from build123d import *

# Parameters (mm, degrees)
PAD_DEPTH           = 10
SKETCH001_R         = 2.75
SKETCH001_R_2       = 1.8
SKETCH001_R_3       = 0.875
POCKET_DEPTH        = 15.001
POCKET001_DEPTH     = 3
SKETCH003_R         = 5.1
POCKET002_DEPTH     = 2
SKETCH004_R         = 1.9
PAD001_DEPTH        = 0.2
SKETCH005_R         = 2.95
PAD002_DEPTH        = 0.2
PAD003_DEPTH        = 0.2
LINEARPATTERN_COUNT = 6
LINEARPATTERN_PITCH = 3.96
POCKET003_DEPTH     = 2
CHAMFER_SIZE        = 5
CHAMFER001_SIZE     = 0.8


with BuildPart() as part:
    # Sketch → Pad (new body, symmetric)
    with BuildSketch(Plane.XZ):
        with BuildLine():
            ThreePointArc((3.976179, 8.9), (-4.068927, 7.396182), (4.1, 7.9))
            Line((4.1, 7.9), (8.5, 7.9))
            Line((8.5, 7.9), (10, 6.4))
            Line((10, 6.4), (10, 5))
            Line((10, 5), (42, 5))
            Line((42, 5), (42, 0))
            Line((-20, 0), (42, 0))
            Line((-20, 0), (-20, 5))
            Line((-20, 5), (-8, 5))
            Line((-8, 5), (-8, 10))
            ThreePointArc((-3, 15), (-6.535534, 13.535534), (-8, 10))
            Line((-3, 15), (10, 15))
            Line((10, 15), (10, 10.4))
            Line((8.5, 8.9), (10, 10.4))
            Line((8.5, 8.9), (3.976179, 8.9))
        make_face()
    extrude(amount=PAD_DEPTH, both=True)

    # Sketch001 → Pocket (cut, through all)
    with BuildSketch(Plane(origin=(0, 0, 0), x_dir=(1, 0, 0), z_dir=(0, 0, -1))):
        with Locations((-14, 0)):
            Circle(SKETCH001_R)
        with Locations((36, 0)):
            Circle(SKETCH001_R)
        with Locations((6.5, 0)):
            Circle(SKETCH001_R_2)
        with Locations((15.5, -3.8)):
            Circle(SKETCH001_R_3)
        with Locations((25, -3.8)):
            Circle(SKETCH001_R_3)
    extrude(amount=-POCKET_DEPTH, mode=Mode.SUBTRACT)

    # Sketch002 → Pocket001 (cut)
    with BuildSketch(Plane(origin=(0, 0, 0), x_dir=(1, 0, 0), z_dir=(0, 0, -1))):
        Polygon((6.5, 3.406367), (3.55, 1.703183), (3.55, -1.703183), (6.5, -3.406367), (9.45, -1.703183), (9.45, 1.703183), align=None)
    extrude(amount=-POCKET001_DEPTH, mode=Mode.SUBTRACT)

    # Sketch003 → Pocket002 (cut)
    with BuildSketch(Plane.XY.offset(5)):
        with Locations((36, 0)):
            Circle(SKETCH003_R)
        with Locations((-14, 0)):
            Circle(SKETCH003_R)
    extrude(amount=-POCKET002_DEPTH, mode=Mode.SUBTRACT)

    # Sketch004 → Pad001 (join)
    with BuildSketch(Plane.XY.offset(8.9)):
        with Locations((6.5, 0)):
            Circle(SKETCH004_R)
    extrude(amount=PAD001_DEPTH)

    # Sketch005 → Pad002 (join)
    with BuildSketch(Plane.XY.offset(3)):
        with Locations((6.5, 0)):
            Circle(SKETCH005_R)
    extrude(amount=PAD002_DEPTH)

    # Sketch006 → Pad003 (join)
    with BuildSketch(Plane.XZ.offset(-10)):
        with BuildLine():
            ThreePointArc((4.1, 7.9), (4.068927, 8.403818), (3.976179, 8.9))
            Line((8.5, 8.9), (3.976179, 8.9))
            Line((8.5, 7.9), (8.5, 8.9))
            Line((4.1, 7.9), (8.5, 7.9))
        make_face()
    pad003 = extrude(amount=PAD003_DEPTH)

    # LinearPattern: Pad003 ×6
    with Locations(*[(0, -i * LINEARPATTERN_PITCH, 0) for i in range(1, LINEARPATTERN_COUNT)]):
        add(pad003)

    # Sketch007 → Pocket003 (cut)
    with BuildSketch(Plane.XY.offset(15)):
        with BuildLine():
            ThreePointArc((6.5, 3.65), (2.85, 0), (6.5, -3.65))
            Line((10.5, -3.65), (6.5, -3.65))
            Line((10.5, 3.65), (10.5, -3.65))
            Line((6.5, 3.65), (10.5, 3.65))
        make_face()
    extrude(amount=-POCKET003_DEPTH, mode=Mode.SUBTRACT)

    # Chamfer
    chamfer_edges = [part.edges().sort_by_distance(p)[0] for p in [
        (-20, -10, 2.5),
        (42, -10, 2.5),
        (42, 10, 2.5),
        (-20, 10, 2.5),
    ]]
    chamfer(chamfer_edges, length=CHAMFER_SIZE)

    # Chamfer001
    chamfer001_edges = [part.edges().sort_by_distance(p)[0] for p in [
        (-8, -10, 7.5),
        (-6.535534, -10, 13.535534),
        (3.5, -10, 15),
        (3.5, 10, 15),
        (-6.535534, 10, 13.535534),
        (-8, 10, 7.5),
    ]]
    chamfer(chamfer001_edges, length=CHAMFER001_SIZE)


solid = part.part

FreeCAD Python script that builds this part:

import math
import FreeCAD as App
import Part
import Sketcher
Q = App.Units.Quantity


def edges_at(feature, points):
    """Names of the edges that pass closest to the given points."""
    edges = feature.Shape.Edges
    near = lambda p: min(range(len(edges)), key=lambda i: edges[i].distToShape(Part.Vertex(*p))[0])
    return sorted({f"Edge{near(p) + 1}" for p in points})


def add_polygon(sketch, points):
    """Adds a closed chain of lines whose ends are joined by coincident constraints."""
    first, n = sketch.GeometryCount, len(points)
    for a, b in zip(points, points[1:] + points[:1]):
        sketch.addGeometry(Part.LineSegment(App.Vector(*a, 0), App.Vector(*b, 0)), False)
    for i in range(n):
        sketch.addConstraint(Sketcher.Constraint("Coincident", first + i, 2, first + (i + 1) % n, 1))

doc = App.newDocument("Part")
body = doc.addObject("PartDesign::Body", "Body")

sketch1 = body.newObject("Sketcher::SketchObject", "Sketch")
sketch1.AttachmentSupport = (doc.getObject("XZ_Plane"), [""])
sketch1.MapMode = "FlatFace"
sketch1.addGeometry(Part.ArcOfCircle(Part.Circle(App.Vector(0, 7.9, 0), App.Vector(0, 0, 1), 4.1), math.radians(14.116985), math.radians(360.000004)), False)
sketch1.addGeometry(Part.LineSegment(App.Vector(3.976179, 8.9, 0), App.Vector(8.5, 8.9, 0)), False)
sketch1.addGeometry(Part.LineSegment(App.Vector(8.5, 8.9, 0), App.Vector(10, 10.4, 0)), False)
sketch1.addGeometry(Part.LineSegment(App.Vector(10, 10.4, 0), App.Vector(10, 15, 0)), False)
sketch1.addGeometry(Part.LineSegment(App.Vector(10, 15, 0), App.Vector(-3, 15, 0)), False)
sketch1.addGeometry(Part.ArcOfCircle(Part.Circle(App.Vector(-3, 10, 0), App.Vector(0, 0, 1), 5), math.radians(89.999996), math.radians(180.000004)), False)
sketch1.addGeometry(Part.LineSegment(App.Vector(-8, 10, 0), App.Vector(-8, 5, 0)), False)
sketch1.addGeometry(Part.LineSegment(App.Vector(-8, 5, 0), App.Vector(-20, 5, 0)), False)
sketch1.addGeometry(Part.LineSegment(App.Vector(-20, 5, 0), App.Vector(-20, 0, 0)), False)
sketch1.addGeometry(Part.LineSegment(App.Vector(-20, 0, 0), App.Vector(42, 0, 0)), False)
sketch1.addGeometry(Part.LineSegment(App.Vector(42, 0, 0), App.Vector(42, 5, 0)), False)
sketch1.addGeometry(Part.LineSegment(App.Vector(42, 5, 0), App.Vector(10, 5, 0)), False)
sketch1.addGeometry(Part.LineSegment(App.Vector(10, 5, 0), App.Vector(10, 6.4, 0)), False)
sketch1.addGeometry(Part.LineSegment(App.Vector(10, 6.4, 0), App.Vector(8.5, 7.9, 0)), False)
sketch1.addGeometry(Part.LineSegment(App.Vector(8.5, 7.9, 0), App.Vector(4.1, 7.9, 0)), False)
sketch1.addConstraint(Sketcher.Constraint("Coincident", 0, 1, 1, 1))
sketch1.addConstraint(Sketcher.Constraint("Coincident", 1, 2, 2, 1))
sketch1.addConstraint(Sketcher.Constraint("Coincident", 2, 2, 3, 1))
sketch1.addConstraint(Sketcher.Constraint("Coincident", 3, 2, 4, 1))
sketch1.addConstraint(Sketcher.Constraint("Tangent", 4, 2, 5, 1))
sketch1.addConstraint(Sketcher.Constraint("Tangent", 5, 2, 6, 1))
sketch1.addConstraint(Sketcher.Constraint("Coincident", 6, 2, 7, 1))
sketch1.addConstraint(Sketcher.Constraint("Coincident", 7, 2, 8, 1))
sketch1.addConstraint(Sketcher.Constraint("Coincident", 8, 2, 9, 1))
sketch1.addConstraint(Sketcher.Constraint("Coincident", 9, 2, 10, 1))
sketch1.addConstraint(Sketcher.Constraint("Coincident", 10, 2, 11, 1))
sketch1.addConstraint(Sketcher.Constraint("Coincident", 11, 2, 12, 1))
sketch1.addConstraint(Sketcher.Constraint("Coincident", 12, 2, 13, 1))
sketch1.addConstraint(Sketcher.Constraint("Coincident", 13, 2, 14, 1))
sketch1.addConstraint(Sketcher.Constraint("Coincident", 14, 2, 0, 2))
sketch1.addConstraint(Sketcher.Constraint("Horizontal", 1))
sketch1.addConstraint(Sketcher.Constraint("Vertical", 3))
sketch1.addConstraint(Sketcher.Constraint("Horizontal", 4))
sketch1.addConstraint(Sketcher.Constraint("Vertical", 6))
sketch1.addConstraint(Sketcher.Constraint("Horizontal", 7))
sketch1.addConstraint(Sketcher.Constraint("Vertical", 8))
sketch1.addConstraint(Sketcher.Constraint("Horizontal", 9))
sketch1.addConstraint(Sketcher.Constraint("Vertical", 10))
sketch1.addConstraint(Sketcher.Constraint("Horizontal", 11))
sketch1.addConstraint(Sketcher.Constraint("Vertical", 12))
sketch1.addConstraint(Sketcher.Constraint("Horizontal", 14))
sketch1.addConstraint(Sketcher.Constraint("PointOnObject", 0, 3, -2))
sketch1.addConstraint(Sketcher.Constraint("PointOnObject", 8, 2, -1))
sketch1.addConstraint(Sketcher.Constraint("Perpendicular", 2, 13))
sketch1.addConstraint(Sketcher.Constraint("Horizontal", 7, 2, 10, 2))
sketch1.addConstraint(Sketcher.Constraint("Horizontal", 0, 3, 13, 2))
sketch1.addConstraint(Sketcher.Constraint("Vertical", 3, 2, 11, 2))
sketch1.addConstraint(Sketcher.Constraint("Vertical", 1, 2, 13, 2))
sketch1.addConstraint(Sketcher.Constraint("Equal", 6, 8))
sketch1.addConstraint(Sketcher.Constraint("Equal", 2, 13))
sketch1.addConstraint(Sketcher.Constraint("Radius", 5, 5.0))
sketch1.addConstraint(Sketcher.Constraint("Radius", 0, 4.1))
sketch1.addConstraint(Sketcher.Constraint("DistanceX", 4, 2, 4, 1, 13.0))
sketch1.addConstraint(Sketcher.Constraint("DistanceX", 7, 2, 7, 1, 12.0))
sketch1.addConstraint(Sketcher.Constraint("DistanceX", 9, 1, 9, 2, 62.0))
sketch1.addConstraint(Sketcher.Constraint("DistanceY", 6, 2, 6, 1, 5.0))
sketch1.addConstraint(Sketcher.Constraint("DistanceX", 14, 2, 14, 1, 4.4))
sketch1.addConstraint(Sketcher.Constraint("DistanceY", 3, 1, 3, 2, 4.6))
sketch1.addConstraint(Sketcher.Constraint("DistanceY", 12, 1, 12, 2, 1.4))
sketch1.addConstraint(Sketcher.Constraint("DistanceX", 5, 3, -1, 1, 3.0))
pad1 = body.newObject("PartDesign::Pad", "Pad")
pad1.Profile = sketch1
pad1.Length = 20
pad1.Midplane = True

sketch2 = body.newObject("Sketcher::SketchObject", "Sketch001")
sketch2.AttachmentSupport = (doc.getObject("XY_Plane"), [""])
sketch2.MapMode = "FlatFace"
sketch2.addGeometry(Part.Circle(App.Vector(-14, 0, 0), App.Vector(0, 0, 1), 2.75), False)
sketch2.addGeometry(Part.Circle(App.Vector(36, 0, 0), App.Vector(0, 0, 1), 2.75), False)
sketch2.addGeometry(Part.Circle(App.Vector(6.5, 0, 0), App.Vector(0, 0, 1), 1.8), False)
sketch2.addGeometry(Part.Circle(App.Vector(15.5, 3.8, 0), App.Vector(0, 0, 1), 0.875), False)
sketch2.addGeometry(Part.Circle(App.Vector(25, 3.8, 0), App.Vector(0, 0, 1), 0.875), False)
sketch2.addConstraint(Sketcher.Constraint("Equal", 0, 1))
sketch2.addConstraint(Sketcher.Constraint("Equal", 3, 4))
sketch2.addConstraint(Sketcher.Constraint("PointOnObject", 0, 3, -1))
sketch2.addConstraint(Sketcher.Constraint("PointOnObject", 1, 3, -1))
sketch2.addConstraint(Sketcher.Constraint("PointOnObject", 2, 3, -1))
sketch2.addConstraint(Sketcher.Constraint("Horizontal", 3, 3, 4, 3))
sketch2.addConstraint(Sketcher.Constraint("Diameter", 0, 5.5))
sketch2.addConstraint(Sketcher.Constraint("Diameter", 2, 3.6))
sketch2.addConstraint(Sketcher.Constraint("Diameter", 3, 1.75))
sketch2.addConstraint(Sketcher.Constraint("DistanceX", 0, 3, -1, 1, 14.0))
sketch2.addConstraint(Sketcher.Constraint("DistanceX", -1, 1, 1, 3, 36.0))
sketch2.addConstraint(Sketcher.Constraint("DistanceX", -1, 1, 4, 3, 25.0))
sketch2.addConstraint(Sketcher.Constraint("DistanceX", 2, 3, 3, 3, 9.0))
sketch2.addConstraint(Sketcher.Constraint("DistanceX", -1, 1, 2, 3, 6.5))
sketch2.addConstraint(Sketcher.Constraint("DistanceY", -1, 1, 3, 3, 3.8))
pocket1 = body.newObject("PartDesign::Pocket", "Pocket")
pocket1.Profile = sketch2
pocket1.Type = "ThroughAll"
pocket1.Reversed = True

sketch3 = body.newObject("Sketcher::SketchObject", "Sketch002")
sketch3.AttachmentSupport = (doc.getObject("XY_Plane"), [""])
sketch3.MapMode = "FlatFace"
add_polygon(sketch3, [(6.5, -3.406367), (3.55, -1.703183), (3.55, 1.703183), (6.5, 3.406367), (9.45, 1.703183), (9.45, -1.703183)])
sketch3.addConstraint(Sketcher.Constraint("Vertical", 1))
sketch3.addConstraint(Sketcher.Constraint("Vertical", 4))
sketch3.addConstraint(Sketcher.Constraint("Symmetric", 2, 2, 5, 2, -1))
sketch3.addConstraint(Sketcher.Constraint("Parallel", 0, 3))
sketch3.addConstraint(Sketcher.Constraint("Parallel", 2, 5))
sketch3.addConstraint(Sketcher.Constraint("Horizontal", 1, 2, 3, 2))
sketch3.addConstraint(Sketcher.Constraint("Horizontal", 0, 2, 4, 2))
sketch3.addConstraint(Sketcher.Constraint("Angle", 0, Q("149.99999 deg")))
sketch3.addConstraint(Sketcher.Constraint("DistanceX", -1, 1, 2, 2, 6.5))
sketch3.addConstraint(Sketcher.Constraint("DistanceX", 1, 2, 3, 2, 5.9))
sketch3.addConstraint(Sketcher.Constraint("DistanceY", 1, 1, 1, 2, 3.406366))
pocket2 = body.newObject("PartDesign::Pocket", "Pocket001")
pocket2.Profile = sketch3
pocket2.Length = 3
pocket2.Reversed = True

sketch4 = body.newObject("Sketcher::SketchObject", "Sketch003")
sketch4.AttachmentSupport = (doc.getObject("XY_Plane"), [""])
sketch4.MapMode = "FlatFace"
sketch4.AttachmentOffset = App.Placement(App.Vector(0, 0, 5), App.Rotation())
sketch4.addGeometry(Part.Circle(App.Vector(36, 0, 0), App.Vector(0, 0, 1), 5.1), False)
sketch4.addGeometry(Part.Circle(App.Vector(-14, 0, 0), App.Vector(0, 0, 1), 5.1), False)
sketch4.addConstraint(Sketcher.Constraint("Equal", 0, 1))
sketch4.addConstraint(Sketcher.Constraint("PointOnObject", 0, 3, -1))
sketch4.addConstraint(Sketcher.Constraint("PointOnObject", 1, 3, -1))
sketch4.addConstraint(Sketcher.Constraint("Diameter", 0, 10.2))
sketch4.addConstraint(Sketcher.Constraint("DistanceX", -1, 1, 0, 3, 36.0))
sketch4.addConstraint(Sketcher.Constraint("DistanceX", 1, 3, -1, 1, 14.0))
pocket3 = body.newObject("PartDesign::Pocket", "Pocket002")
pocket3.Profile = sketch4
pocket3.Length = 2

sketch5 = body.newObject("Sketcher::SketchObject", "Sketch004")
sketch5.AttachmentSupport = (doc.getObject("XY_Plane"), [""])
sketch5.MapMode = "FlatFace"
sketch5.AttachmentOffset = App.Placement(App.Vector(0, 0, 8.9), App.Rotation())
sketch5.addGeometry(Part.Circle(App.Vector(6.5, 0, 0), App.Vector(0, 0, 1), 1.9), False)
sketch5.addConstraint(Sketcher.Constraint("PointOnObject", 0, 3, -1))
sketch5.addConstraint(Sketcher.Constraint("Diameter", 0, 3.8))
sketch5.addConstraint(Sketcher.Constraint("DistanceX", -1, 1, 0, 3, 6.5))
pad2 = body.newObject("PartDesign::Pad", "Pad001")
pad2.Profile = sketch5
pad2.Length = 0.2

sketch6 = body.newObject("Sketcher::SketchObject", "Sketch005")
sketch6.AttachmentSupport = (doc.getObject("XY_Plane"), [""])
sketch6.MapMode = "FlatFace"
sketch6.AttachmentOffset = App.Placement(App.Vector(0, 0, 3), App.Rotation())
sketch6.addGeometry(Part.Circle(App.Vector(6.5, 0, 0), App.Vector(0, 0, 1), 2.95), False)
sketch6.addConstraint(Sketcher.Constraint("PointOnObject", 0, 3, -1))
sketch6.addConstraint(Sketcher.Constraint("Diameter", 0, 5.9))
sketch6.addConstraint(Sketcher.Constraint("DistanceX", -1, 1, 0, 3, 6.5))
pad3 = body.newObject("PartDesign::Pad", "Pad002")
pad3.Profile = sketch6
pad3.Length = 0.2

sketch7 = body.newObject("Sketcher::SketchObject", "Sketch006")
sketch7.AttachmentSupport = (doc.getObject("XZ_Plane"), [""])
sketch7.MapMode = "FlatFace"
sketch7.AttachmentOffset = App.Placement(App.Vector(0, 0, -10), App.Rotation())
sketch7.addGeometry(Part.ArcOfCircle(Part.Circle(App.Vector(-0.000003, 7.899999, 0), App.Vector(0, 0, 1), 4.100003), math.radians(0.00001), math.radians(14.116979)), False)
sketch7.addGeometry(Part.LineSegment(App.Vector(4.1, 7.9, 0), App.Vector(8.5, 7.9, 0)), False)
sketch7.addGeometry(Part.LineSegment(App.Vector(8.5, 7.9, 0), App.Vector(8.5, 8.9, 0)), False)
sketch7.addGeometry(Part.LineSegment(App.Vector(8.5, 8.9, 0), App.Vector(3.976179, 8.9, 0)), False)
sketch7.addConstraint(Sketcher.Constraint("Coincident", 0, 1, 1, 1))
sketch7.addConstraint(Sketcher.Constraint("Coincident", 1, 2, 2, 1))
sketch7.addConstraint(Sketcher.Constraint("Coincident", 2, 2, 3, 1))
sketch7.addConstraint(Sketcher.Constraint("Coincident", 3, 2, 0, 2))
sketch7.addConstraint(Sketcher.Constraint("Horizontal", 1))
sketch7.addConstraint(Sketcher.Constraint("Vertical", 2))
sketch7.addConstraint(Sketcher.Constraint("Horizontal", 3))
sketch7.addConstraint(Sketcher.Constraint("DistanceY", 2, 1, 2, 2, 1.0))
sketch7.addConstraint(Sketcher.Constraint("DistanceX", 1, 1, 1, 2, 4.4))
sketch7.addConstraint(Sketcher.Constraint("DistanceY", 0, 3, 2, 2, 1.000001))
sketch7.addConstraint(Sketcher.Constraint("DistanceY", -1, 1, 0, 3, 7.899999))
sketch7.addConstraint(Sketcher.Constraint("DistanceX", -1, 1, 0, 1, 4.1))
sketch7.addConstraint(Sketcher.Constraint("Radius", 0, 4.100003))
pad4 = body.newObject("PartDesign::Pad", "Pad003")
pad4.Profile = sketch7
pad4.Length = 0.2
doc.recompute()

linearpattern = body.newObject("PartDesign::LinearPattern", "LinearPattern")
linearpattern.Originals = [pad4]
linearpattern.Direction = (doc.getObject("Y_Axis"), [""])
linearpattern.Mode = "offset"
linearpattern.Offset = 3.96
linearpattern.Occurrences = 6
linearpattern.Reversed = True
body.Tip = linearpattern

sketch8 = body.newObject("Sketcher::SketchObject", "Sketch007")
sketch8.AttachmentSupport = (doc.getObject("XY_Plane"), [""])
sketch8.MapMode = "FlatFace"
sketch8.AttachmentOffset = App.Placement(App.Vector(0, 0, 15), App.Rotation())
sketch8.addGeometry(Part.ArcOfCircle(Part.Circle(App.Vector(6.5, 0, 0), App.Vector(0, 0, 1), 3.65), math.radians(90), math.radians(270)), False)
sketch8.addGeometry(Part.LineSegment(App.Vector(6.5, -3.65, 0), App.Vector(10.5, -3.65, 0)), False)
sketch8.addGeometry(Part.LineSegment(App.Vector(10.5, -3.65, 0), App.Vector(10.5, 3.65, 0)), False)
sketch8.addGeometry(Part.LineSegment(App.Vector(10.5, 3.65, 0), App.Vector(6.5, 3.65, 0)), False)
sketch8.addConstraint(Sketcher.Constraint("Tangent", 0, 2, 1, 1))
sketch8.addConstraint(Sketcher.Constraint("Coincident", 1, 2, 2, 1))
sketch8.addConstraint(Sketcher.Constraint("Coincident", 2, 2, 3, 1))
sketch8.addConstraint(Sketcher.Constraint("Tangent", 3, 2, 0, 1))
sketch8.addConstraint(Sketcher.Constraint("Horizontal", 1))
sketch8.addConstraint(Sketcher.Constraint("Vertical", 2))
sketch8.addConstraint(Sketcher.Constraint("Horizontal", 3))
sketch8.addConstraint(Sketcher.Constraint("PointOnObject", 0, 3, -1))
sketch8.addConstraint(Sketcher.Constraint("DistanceX", 1, 1, 1, 2, 4.0))
sketch8.addConstraint(Sketcher.Constraint("Radius", 0, 3.65))
sketch8.addConstraint(Sketcher.Constraint("DistanceX", -1, 1, 0, 3, 6.5))
pocket4 = body.newObject("PartDesign::Pocket", "Pocket003")
pocket4.Profile = sketch8
pocket4.Length = 2
doc.recompute()

chamfer = body.newObject("PartDesign::Chamfer", "Chamfer")
chamfer.Base = (pocket4, edges_at(pocket4, [
    (-20, -10, 2.5),
    (42, -10, 2.5),
    (42, 10, 2.5),
    (-20, 10, 2.5),
]))
chamfer.Size = 5
doc.recompute()

chamfer2 = body.newObject("PartDesign::Chamfer", "Chamfer001")
chamfer2.Base = (chamfer, edges_at(chamfer, [
    (-8, -10, 7.5),
    (-6.536, -10, 13.536),
    (3.5, -10, 15),
    (3.5, 10, 15),
    (-6.536, 10, 13.536),
    (-8, 10, 7.5),
]))
chamfer2.Size = 0.8

doc.recompute()
